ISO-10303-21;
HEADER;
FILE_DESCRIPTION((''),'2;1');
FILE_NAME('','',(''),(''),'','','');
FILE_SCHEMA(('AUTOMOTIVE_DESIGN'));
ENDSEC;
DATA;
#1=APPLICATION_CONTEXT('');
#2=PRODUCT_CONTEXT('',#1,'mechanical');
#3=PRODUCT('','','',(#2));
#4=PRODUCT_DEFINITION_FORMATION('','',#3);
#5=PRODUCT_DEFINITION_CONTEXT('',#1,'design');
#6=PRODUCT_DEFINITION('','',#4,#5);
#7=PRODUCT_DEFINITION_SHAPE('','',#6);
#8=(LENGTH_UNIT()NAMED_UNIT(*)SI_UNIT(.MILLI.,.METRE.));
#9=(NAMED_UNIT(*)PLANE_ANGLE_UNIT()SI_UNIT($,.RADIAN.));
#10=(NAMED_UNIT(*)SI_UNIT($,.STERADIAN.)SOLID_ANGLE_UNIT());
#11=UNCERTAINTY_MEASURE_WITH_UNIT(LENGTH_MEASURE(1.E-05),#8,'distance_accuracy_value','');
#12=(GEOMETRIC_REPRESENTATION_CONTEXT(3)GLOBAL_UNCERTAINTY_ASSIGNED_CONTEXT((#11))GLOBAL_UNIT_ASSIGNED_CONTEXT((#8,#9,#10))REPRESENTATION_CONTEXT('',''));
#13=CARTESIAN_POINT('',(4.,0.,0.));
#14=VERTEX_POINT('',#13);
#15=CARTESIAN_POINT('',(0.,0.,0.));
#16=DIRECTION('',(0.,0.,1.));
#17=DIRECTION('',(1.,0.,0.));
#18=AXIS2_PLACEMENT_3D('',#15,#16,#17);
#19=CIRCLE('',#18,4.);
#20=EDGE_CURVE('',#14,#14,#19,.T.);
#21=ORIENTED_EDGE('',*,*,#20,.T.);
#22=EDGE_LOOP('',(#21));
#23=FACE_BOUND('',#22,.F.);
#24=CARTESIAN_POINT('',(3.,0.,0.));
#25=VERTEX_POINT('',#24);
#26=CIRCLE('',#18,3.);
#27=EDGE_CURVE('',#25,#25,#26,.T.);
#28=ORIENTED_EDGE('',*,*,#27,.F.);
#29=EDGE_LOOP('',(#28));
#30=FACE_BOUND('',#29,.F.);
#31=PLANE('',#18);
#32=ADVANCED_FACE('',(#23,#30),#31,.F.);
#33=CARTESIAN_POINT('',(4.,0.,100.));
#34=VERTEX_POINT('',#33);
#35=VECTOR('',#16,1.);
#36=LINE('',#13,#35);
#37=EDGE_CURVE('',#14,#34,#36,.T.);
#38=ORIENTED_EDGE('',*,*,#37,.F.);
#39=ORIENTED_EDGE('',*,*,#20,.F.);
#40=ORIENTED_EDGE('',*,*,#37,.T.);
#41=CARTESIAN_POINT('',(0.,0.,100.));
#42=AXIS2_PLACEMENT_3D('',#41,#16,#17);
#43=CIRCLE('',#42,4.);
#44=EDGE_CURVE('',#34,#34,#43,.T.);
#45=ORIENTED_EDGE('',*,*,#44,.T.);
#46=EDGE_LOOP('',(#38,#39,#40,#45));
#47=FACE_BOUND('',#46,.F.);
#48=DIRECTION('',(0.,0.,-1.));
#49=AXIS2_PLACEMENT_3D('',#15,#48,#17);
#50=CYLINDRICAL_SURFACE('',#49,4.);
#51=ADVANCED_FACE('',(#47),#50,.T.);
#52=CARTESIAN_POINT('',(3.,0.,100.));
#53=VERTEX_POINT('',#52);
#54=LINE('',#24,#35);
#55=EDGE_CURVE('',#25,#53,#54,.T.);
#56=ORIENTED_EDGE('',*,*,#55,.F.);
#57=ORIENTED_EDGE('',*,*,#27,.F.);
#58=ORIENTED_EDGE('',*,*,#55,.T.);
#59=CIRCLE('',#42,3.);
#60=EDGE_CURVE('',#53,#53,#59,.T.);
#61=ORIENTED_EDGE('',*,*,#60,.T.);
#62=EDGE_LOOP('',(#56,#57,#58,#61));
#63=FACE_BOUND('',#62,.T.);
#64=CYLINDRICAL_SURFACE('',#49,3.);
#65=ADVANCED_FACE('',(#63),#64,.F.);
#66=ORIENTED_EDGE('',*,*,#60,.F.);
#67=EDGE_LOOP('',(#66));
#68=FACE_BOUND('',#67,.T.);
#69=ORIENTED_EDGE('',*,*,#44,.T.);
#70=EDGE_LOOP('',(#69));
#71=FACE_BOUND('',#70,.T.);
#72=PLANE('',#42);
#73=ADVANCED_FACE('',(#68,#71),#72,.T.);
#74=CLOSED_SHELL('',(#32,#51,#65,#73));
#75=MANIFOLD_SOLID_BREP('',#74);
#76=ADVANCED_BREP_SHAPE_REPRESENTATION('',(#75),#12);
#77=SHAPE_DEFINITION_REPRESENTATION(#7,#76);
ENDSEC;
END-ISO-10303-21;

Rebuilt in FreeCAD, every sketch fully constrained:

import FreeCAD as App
import Part
import Sketcher
from FreeCAD import Vector
Q = App.Units.Quantity

doc = App.newDocument("Part")
body = doc.addObject("PartDesign::Body", "Body")

sketch1 = doc.addObject("Sketcher::SketchObject", "Sketch")
body.addObject(sketch1)
sketch1.AttachmentSupport = (doc.XY_Plane, [""])
sketch1.MapMode = "FlatFace"
sketch1.addGeometry([
    Part.Circle(Vector(0, 0, 0), Vector(0, 0, 1), 4),
    Part.Circle(Vector(0, 0, 0), Vector(0, 0, 1), 3),
], False)
sketch1.addConstraint([
    Sketcher.Constraint("Coincident", 0, 3, -1, 1),
    Sketcher.Constraint("Coincident", 1, 3, -1, 1),
    Sketcher.Constraint("Diameter", 0, Q("8 mm")),
    Sketcher.Constraint("Diameter", 1, Q("6 mm")),
])
pad1 = doc.addObject("PartDesign::Pad", "Pad")
body.addObject(pad1)
pad1.Profile = sketch1
pad1.Length = 100

doc.recompute()
